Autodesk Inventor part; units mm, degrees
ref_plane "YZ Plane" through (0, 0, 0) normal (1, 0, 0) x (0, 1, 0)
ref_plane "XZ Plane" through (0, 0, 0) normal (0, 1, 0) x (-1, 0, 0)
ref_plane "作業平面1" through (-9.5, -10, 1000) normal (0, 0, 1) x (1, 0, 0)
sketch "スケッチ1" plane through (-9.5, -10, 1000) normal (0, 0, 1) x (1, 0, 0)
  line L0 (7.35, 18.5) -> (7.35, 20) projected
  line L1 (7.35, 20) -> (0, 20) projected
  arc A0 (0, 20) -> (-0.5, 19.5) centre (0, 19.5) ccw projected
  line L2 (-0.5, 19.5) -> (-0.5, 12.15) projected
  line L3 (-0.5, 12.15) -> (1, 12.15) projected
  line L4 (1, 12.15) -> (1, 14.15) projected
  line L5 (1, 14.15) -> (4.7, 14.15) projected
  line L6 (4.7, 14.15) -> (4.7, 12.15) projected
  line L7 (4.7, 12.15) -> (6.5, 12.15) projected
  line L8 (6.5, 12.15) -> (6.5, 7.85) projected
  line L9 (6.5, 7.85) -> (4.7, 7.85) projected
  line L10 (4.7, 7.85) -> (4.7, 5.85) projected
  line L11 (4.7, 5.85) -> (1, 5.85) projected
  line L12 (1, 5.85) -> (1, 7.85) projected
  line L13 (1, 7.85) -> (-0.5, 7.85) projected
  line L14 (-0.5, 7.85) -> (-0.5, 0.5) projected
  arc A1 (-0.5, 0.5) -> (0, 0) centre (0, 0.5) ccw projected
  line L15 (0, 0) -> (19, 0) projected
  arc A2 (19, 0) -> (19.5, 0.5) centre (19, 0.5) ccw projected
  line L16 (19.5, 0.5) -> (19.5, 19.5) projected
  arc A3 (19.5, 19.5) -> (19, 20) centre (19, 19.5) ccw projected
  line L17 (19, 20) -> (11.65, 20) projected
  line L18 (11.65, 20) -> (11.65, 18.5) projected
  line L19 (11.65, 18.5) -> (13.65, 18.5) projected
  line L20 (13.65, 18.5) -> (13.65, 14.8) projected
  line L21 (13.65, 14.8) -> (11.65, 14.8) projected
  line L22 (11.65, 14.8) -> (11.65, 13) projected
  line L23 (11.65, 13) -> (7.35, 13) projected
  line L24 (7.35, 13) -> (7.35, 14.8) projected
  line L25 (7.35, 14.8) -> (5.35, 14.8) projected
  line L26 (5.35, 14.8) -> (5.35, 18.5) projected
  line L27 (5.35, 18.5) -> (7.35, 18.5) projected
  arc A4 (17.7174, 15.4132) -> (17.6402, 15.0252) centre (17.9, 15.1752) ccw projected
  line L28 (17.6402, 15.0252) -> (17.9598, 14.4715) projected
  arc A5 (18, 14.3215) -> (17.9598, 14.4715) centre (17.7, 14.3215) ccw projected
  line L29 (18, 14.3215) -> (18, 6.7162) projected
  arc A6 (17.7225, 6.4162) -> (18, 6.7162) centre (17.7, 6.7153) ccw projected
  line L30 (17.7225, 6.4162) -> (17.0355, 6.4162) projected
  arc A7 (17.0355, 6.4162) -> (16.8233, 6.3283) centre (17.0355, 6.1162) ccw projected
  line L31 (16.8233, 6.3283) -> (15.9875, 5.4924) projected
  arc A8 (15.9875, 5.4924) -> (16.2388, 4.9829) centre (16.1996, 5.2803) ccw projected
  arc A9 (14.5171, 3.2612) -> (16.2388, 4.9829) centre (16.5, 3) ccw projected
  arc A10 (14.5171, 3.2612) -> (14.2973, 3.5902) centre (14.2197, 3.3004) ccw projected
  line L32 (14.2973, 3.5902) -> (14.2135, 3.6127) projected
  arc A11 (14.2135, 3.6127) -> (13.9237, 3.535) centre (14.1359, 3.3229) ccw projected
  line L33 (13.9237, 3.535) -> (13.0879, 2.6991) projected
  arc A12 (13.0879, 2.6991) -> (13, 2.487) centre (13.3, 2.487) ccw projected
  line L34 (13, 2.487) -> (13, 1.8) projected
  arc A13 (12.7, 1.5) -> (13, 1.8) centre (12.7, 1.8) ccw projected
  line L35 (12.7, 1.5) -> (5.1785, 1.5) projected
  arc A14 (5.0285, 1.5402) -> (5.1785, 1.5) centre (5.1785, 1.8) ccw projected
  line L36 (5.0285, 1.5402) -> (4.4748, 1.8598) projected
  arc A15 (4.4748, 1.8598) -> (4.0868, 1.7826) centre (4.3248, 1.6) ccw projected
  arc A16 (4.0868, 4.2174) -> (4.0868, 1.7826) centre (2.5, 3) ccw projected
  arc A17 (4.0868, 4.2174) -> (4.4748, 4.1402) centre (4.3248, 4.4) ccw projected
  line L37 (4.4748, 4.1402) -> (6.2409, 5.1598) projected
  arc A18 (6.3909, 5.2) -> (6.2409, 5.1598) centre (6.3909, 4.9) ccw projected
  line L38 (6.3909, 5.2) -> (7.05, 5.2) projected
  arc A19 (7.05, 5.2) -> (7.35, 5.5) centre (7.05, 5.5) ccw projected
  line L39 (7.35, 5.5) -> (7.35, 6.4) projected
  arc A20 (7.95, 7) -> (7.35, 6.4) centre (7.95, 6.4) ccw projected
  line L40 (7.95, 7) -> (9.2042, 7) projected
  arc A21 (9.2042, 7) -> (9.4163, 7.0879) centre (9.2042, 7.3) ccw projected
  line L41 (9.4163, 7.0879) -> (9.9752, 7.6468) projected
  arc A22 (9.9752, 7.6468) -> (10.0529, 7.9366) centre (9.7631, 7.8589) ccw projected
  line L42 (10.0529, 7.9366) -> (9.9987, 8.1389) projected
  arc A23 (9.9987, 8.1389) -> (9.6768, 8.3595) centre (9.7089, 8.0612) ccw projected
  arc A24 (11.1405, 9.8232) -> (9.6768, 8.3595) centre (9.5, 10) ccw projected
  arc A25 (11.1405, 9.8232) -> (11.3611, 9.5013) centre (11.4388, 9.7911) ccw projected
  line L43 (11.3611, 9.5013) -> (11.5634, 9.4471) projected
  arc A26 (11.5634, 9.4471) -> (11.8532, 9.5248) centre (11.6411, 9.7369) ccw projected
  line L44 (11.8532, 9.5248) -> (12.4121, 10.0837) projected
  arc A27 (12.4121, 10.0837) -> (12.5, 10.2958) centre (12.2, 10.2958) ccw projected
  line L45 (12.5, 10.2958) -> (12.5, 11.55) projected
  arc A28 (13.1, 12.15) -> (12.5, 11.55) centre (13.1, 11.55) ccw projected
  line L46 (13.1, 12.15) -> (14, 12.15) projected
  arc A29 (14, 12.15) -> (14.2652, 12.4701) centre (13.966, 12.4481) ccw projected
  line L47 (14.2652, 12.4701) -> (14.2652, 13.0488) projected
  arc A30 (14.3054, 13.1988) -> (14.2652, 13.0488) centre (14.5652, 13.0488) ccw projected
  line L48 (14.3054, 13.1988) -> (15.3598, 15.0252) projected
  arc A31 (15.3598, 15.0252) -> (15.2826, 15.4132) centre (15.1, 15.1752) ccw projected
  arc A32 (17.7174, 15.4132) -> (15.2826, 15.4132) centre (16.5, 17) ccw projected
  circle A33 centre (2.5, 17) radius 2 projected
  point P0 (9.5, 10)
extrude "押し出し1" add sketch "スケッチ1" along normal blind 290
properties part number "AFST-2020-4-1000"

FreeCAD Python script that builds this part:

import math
import FreeCAD as App
import Part
import Sketcher

V = App.Vector
Q = App.Units.Quantity

doc = App.newDocument("Part")
body = doc.addObject("PartDesign::Body", "Body")

# Sketch on XY plane
sketch1 = body.newObject("Sketcher::SketchObject", "Sketch")
sketch1.AttachmentSupport = (doc.getObject("XY_Plane"), [""])
sketch1.MapMode = "FlatFace"
sketch1.AttachmentOffset = App.Placement(V(0, 0, 1000), App.Rotation())
sketch1.addGeometry([
    Part.LineSegment(V(-4.15, 8.5, 0), V(-2.15, 8.5, 0)),  # 0
    Part.LineSegment(V(-2.15, 8.5, 0), V(-2.15, 10, 0)),  # 1
    Part.LineSegment(V(-2.15, 10, 0), V(-9.5, 10, 0)),  # 2
    Part.ArcOfCircle(Part.Circle(V(-9.5, 9.5, 0), V(0, 0, 1), 0.5), math.radians(90), math.radians(180)),  # 3
    Part.LineSegment(V(-10, 9.5, 0), V(-10, 2.15, 0)),  # 4
    Part.LineSegment(V(-10, 2.15, 0), V(-8.5, 2.15, 0)),  # 5
    Part.LineSegment(V(-8.5, 2.15, 0), V(-8.5, 4.15, 0)),  # 6
    Part.LineSegment(V(-8.5, 4.15, 0), V(-4.8, 4.15, 0)),  # 7
    Part.LineSegment(V(-4.8, 4.15, 0), V(-4.8, 2.15, 0)),  # 8
    Part.LineSegment(V(-4.8, 2.15, 0), V(-3, 2.15, 0)),  # 9
    Part.LineSegment(V(-3, 2.15, 0), V(-3, -2.15, 0)),  # 10
    Part.LineSegment(V(-3, -2.15, 0), V(-4.8, -2.15, 0)),  # 11
    Part.LineSegment(V(-4.8, -2.15, 0), V(-4.8, -4.15, 0)),  # 12
    Part.LineSegment(V(-4.8, -4.15, 0), V(-8.5, -4.15, 0)),  # 13
    Part.LineSegment(V(-8.5, -4.15, 0), V(-8.5, -2.15, 0)),  # 14
    Part.LineSegment(V(-8.5, -2.15, 0), V(-10, -2.15, 0)),  # 15
    Part.LineSegment(V(-10, -2.15, 0), V(-10, -9.5, 0)),  # 16
    Part.ArcOfCircle(Part.Circle(V(-9.5, -9.5, 0), V(0, 0, 1), 0.5), math.radians(180), math.radians(270)),  # 17
    Part.LineSegment(V(-9.5, -10, 0), V(9.5, -10, 0)),  # 18
    Part.ArcOfCircle(Part.Circle(V(9.5, -9.5, 0), V(0, 0, 1), 0.5), math.radians(-90), math.radians(0)),  # 19
    Part.LineSegment(V(10, -9.5, 0), V(10, 9.5, 0)),  # 20
    Part.ArcOfCircle(Part.Circle(V(9.5, 9.5, 0), V(0, 0, 1), 0.5), math.radians(0), math.radians(90)),  # 21
    Part.LineSegment(V(9.5, 10, 0), V(2.15, 10, 0)),  # 22
    Part.LineSegment(V(2.15, 10, 0), V(2.15, 8.5, 0)),  # 23
    Part.LineSegment(V(2.15, 8.5, 0), V(4.15, 8.5, 0)),  # 24
    Part.LineSegment(V(4.15, 8.5, 0), V(4.15, 4.8, 0)),  # 25
    Part.LineSegment(V(4.15, 4.8, 0), V(2.15, 4.8, 0)),  # 26
    Part.LineSegment(V(2.15, 4.8, 0), V(2.15, 3, 0)),  # 27
    Part.LineSegment(V(2.15, 3, 0), V(-2.15, 3, 0)),  # 28
    Part.LineSegment(V(-2.15, 3, 0), V(-2.15, 4.8, 0)),  # 29
    Part.LineSegment(V(-2.15, 4.8, 0), V(-4.15, 4.8, 0)),  # 30
    Part.LineSegment(V(-4.15, 4.8, 0), V(-4.15, 8.5, 0)),  # 31
    Part.ArcOfCircle(Part.Circle(V(7, 7, 0), V(0, 0, 1), 1.999999), math.radians(-52.50442), math.radians(232.50442)),  # 32
    Part.ArcOfCircle(Part.Circle(V(8.4, 5.1752, 0), V(0, 0, 1), 0.299978), math.radians(127.49639), math.radians(210.000728)),  # 33
    Part.LineSegment(V(8.1402, 5.0252, 0), V(8.4598, 4.4715, 0)),  # 34
    Part.ArcOfCircle(Part.Circle(V(8.2, 4.3215, 0), V(0, 0, 1), 0.3), math.radians(0), math.radians(30.000728)),  # 35
    Part.LineSegment(V(8.5, 4.3215, 0), V(8.5, -3.2838, 0)),  # 36
    Part.ArcOfCircle(Part.Circle(V(8.2, -3.2847, 0), V(0, 0, 1), 0.299945), math.radians(-85.697989), math.radians(0.171887)),  # 37
    Part.LineSegment(V(8.2225, -3.5838, 0), V(7.5355, -3.5838, 0)),  # 38
    Part.ArcOfCircle(Part.Circle(V(7.5355, -3.8838, 0), V(0, 0, 1), 0.3), math.radians(90), math.radians(135.013504)),  # 39
    Part.LineSegment(V(7.3233, -3.6717, 0), V(6.4875, -4.5076, 0)),  # 40
    Part.ArcOfCircle(Part.Circle(V(6.6996, -4.7197, 0), V(0, 0, 1), 0.299955), math.radians(135), math.radians(277.508815)),  # 41
    Part.ArcOfCircle(Part.Circle(V(7, -7, 0), V(0, 0, 1), 2.000029), math.radians(172.495846), math.radians(457.504154)),  # 42
    Part.ArcOfCircle(Part.Circle(V(4.7197, -6.6996, 0), V(0, 0, 1), 0.299972), math.radians(-7.508815), math.radians(75.009533)),  # 43
    Part.LineSegment(V(4.7973, -6.4098, 0), V(4.7135, -6.3873, 0)),  # 44
    Part.ArcOfCircle(Part.Circle(V(4.6359, -6.6771, 0), V(0, 0, 1), 0.30001), math.radians(75.009533), math.radians(135.013504)),  # 45
    Part.LineSegment(V(4.4237, -6.465, 0), V(3.5879, -7.3009, 0)),  # 46
    Part.ArcOfCircle(Part.Circle(V(3.8, -7.513, 0), V(0, 0, 1), 0.299955), math.radians(135), math.radians(180)),  # 47
    Part.LineSegment(V(3.5, -7.513, 0), V(3.5, -8.2, 0)),  # 48
    Part.ArcOfCircle(Part.Circle(V(3.2, -8.2, 0), V(0, 0, 1), 0.3), math.radians(-90), math.radians(0)),  # 49
    Part.LineSegment(V(3.2, -8.5, 0), V(-4.3215, -8.5, 0)),  # 50
    Part.ArcOfCircle(Part.Circle(V(-4.3215, -8.2, 0), V(0, 0, 1), 0.299993), math.radians(-120.000728), math.radians(-90)),  # 51
    Part.LineSegment(V(-4.4715, -8.4598, 0), V(-5.0252, -8.1402, 0)),  # 52
    Part.ArcOfCircle(Part.Circle(V(-5.1752, -8.4, 0), V(0, 0, 1), 0.299993), math.radians(59.999272), math.radians(142.50361)),  # 53
    Part.ArcOfCircle(Part.Circle(V(-7, -7, 0), V(0, 0, 1), 1.999999), math.radians(37.49558), math.radians(322.50442)),  # 54
    Part.ArcOfCircle(Part.Circle(V(-5.1752, -5.6, 0), V(0, 0, 1), 0.299978), math.radians(-142.50361), math.radians(-59.999272)),  # 55
    Part.LineSegment(V(-5.0252, -5.8598, 0), V(-3.2591, -4.8402, 0)),  # 56
    Part.ArcOfCircle(Part.Circle(V(-3.1091, -5.1, 0), V(0, 0, 1), 0.3), math.radians(90), math.radians(120.000728)),  # 57
    Part.LineSegment(V(-3.1091, -4.8, 0), V(-2.45, -4.8, 0)),  # 58
    Part.ArcOfCircle(Part.Circle(V(-2.45, -4.5, 0), V(0, 0, 1), 0.3), math.radians(-90), math.radians(0)),  # 59
    Part.LineSegment(V(-2.15, -4.5, 0), V(-2.15, -3.6, 0)),  # 60
    Part.ArcOfCircle(Part.Circle(V(-1.55, -3.6, 0), V(0, 0, 1), 0.6), math.radians(90), math.radians(180)),  # 61
    Part.LineSegment(V(-1.55, -3, 0), V(-0.2958, -3, 0)),  # 62
    Part.ArcOfCircle(Part.Circle(V(-0.2958, -2.7, 0), V(0, 0, 1), 0.3), math.radians(-90), math.radians(-45)),  # 63
    Part.LineSegment(V(-0.0837, -2.9121, 0), V(0.4752, -2.3532, 0)),  # 64
    Part.ArcOfCircle(Part.Circle(V(0.2631, -2.1411, 0), V(0, 0, 1), 0.299955), math.radians(-45), math.radians(15.008914)),  # 65
    Part.LineSegment(V(0.5529, -2.0634, 0), V(0.4987, -1.8611, 0)),  # 66
    Part.ArcOfCircle(Part.Circle(V(0.2089, -1.9388, 0), V(0, 0, 1), 0.300036), math.radians(15.008914), math.radians(96.141952)),  # 67
    Part.ArcOfCircle(Part.Circle(V(0, 0, 0), V(0, 0, 1), 1.65), math.radians(-6.15114), math.radians(276.15114)),  # 68
    Part.ArcOfCircle(Part.Circle(V(1.9388, -0.2089, 0), V(0, 0, 1), 0.300022), math.radians(173.858048), math.radians(254.991086)),  # 69
    Part.LineSegment(V(1.8611, -0.4987, 0), V(2.0634, -0.5529, 0)),  # 70
    Part.ArcOfCircle(Part.Circle(V(2.1411, -0.2631, 0), V(0, 0, 1), 0.300036), math.radians(-105.008914), math.radians(-45)),  # 71
    Part.LineSegment(V(2.3532, -0.4752, 0), V(2.9121, 0.0837, 0)),  # 72
    Part.ArcOfCircle(Part.Circle(V(2.7, 0.2958, 0), V(0, 0, 1), 0.299955), math.radians(-45), math.radians(0)),  # 73
    Part.LineSegment(V(3, 0.2958, 0), V(3, 1.55, 0)),  # 74
    Part.ArcOfCircle(Part.Circle(V(3.6, 1.55, 0), V(0, 0, 1), 0.6), math.radians(90), math.radians(180)),  # 75
    Part.LineSegment(V(3.6, 2.15, 0), V(4.5, 2.15, 0)),  # 76
    Part.ArcOfCircle(Part.Circle(V(4.466, 2.4481, 0), V(0, 0, 1), 0.300033), math.radians(-83.493208), math.radians(4.205357)),  # 77
    Part.LineSegment(V(4.7652, 2.4701, 0), V(4.7652, 3.0488, 0)),  # 78
    Part.ArcOfCircle(Part.Circle(V(5.0652, 3.0488, 0), V(0, 0, 1), 0.299993), math.radians(149.999272), math.radians(180)),  # 79
    Part.LineSegment(V(4.8054, 3.1988, 0), V(5.8598, 5.0252, 0)),  # 80
    Part.ArcOfCircle(Part.Circle(V(5.6, 5.1752, 0), V(0, 0, 1), 0.299993), math.radians(-30.000728), math.radians(52.50361)),  # 81
    Part.Circle(V(-7, 7, 0), V(0, 0, 1), 2),  # 82
], False)
sketch1.addConstraint([
    Sketcher.Constraint("Coincident", 0, 2, 1, 1),
    Sketcher.Constraint("Coincident", 1, 2, 2, 1),
    Sketcher.Constraint("Tangent", 2, 2, 3, 1),
    Sketcher.Constraint("Tangent", 3, 2, 4, 1),
    Sketcher.Constraint("Coincident", 4, 2, 5, 1),
    Sketcher.Constraint("Coincident", 5, 2, 6, 1),
    Sketcher.Constraint("Coincident", 6, 2, 7, 1),
    Sketcher.Constraint("Coincident", 7, 2, 8, 1),
    Sketcher.Constraint("Coincident", 8, 2, 9, 1),
    Sketcher.Constraint("Coincident", 9, 2, 10, 1),
    Sketcher.Constraint("Coincident", 10, 2, 11, 1),
    Sketcher.Constraint("Coincident", 11, 2, 12, 1),
    Sketcher.Constraint("Coincident", 12, 2, 13, 1),
    Sketcher.Constraint("Coincident", 13, 2, 14, 1),
    Sketcher.Constraint("Coincident", 14, 2, 15, 1),
    Sketcher.Constraint("Coincident", 15, 2, 16, 1),
    Sketcher.Constraint("Tangent", 16, 2, 17, 1),
    Sketcher.Constraint("Tangent", 17, 2, 18, 1),
    Sketcher.Constraint("Tangent", 18, 2, 19, 1),
    Sketcher.Constraint("Tangent", 19, 2, 20, 1),
    Sketcher.Constraint("Tangent", 20, 2, 21, 1),
    Sketcher.Constraint("Tangent", 21, 2, 22, 1),
    Sketcher.Constraint("Coincident", 22, 2, 23, 1),
    Sketcher.Constraint("Coincident", 23, 2, 24, 1),
    Sketcher.Constraint("Coincident", 24, 2, 25, 1),
    Sketcher.Constraint("Coincident", 25, 2, 26, 1),
    Sketcher.Constraint("Coincident", 26, 2, 27, 1),
    Sketcher.Constraint("Coincident", 27, 2, 28, 1),
    Sketcher.Constraint("Coincident", 28, 2, 29, 1),
    Sketcher.Constraint("Coincident", 29, 2, 30, 1),
    Sketcher.Constraint("Coincident", 30, 2, 31, 1),
    Sketcher.Constraint("Coincident", 31, 2, 0, 1),
    Sketcher.Constraint("Tangent", 32, 1, 33, 1),
    Sketcher.Constraint("Tangent", 33, 2, 34, 1),
    Sketcher.Constraint("Tangent", 34, 2, 35, 2),
    Sketcher.Constraint("Tangent", 35, 1, 36, 1),
    Sketcher.Constraint("Coincident", 36, 2, 37, 2),
    Sketcher.Constraint("Coincident", 37, 1, 38, 1),
    Sketcher.Constraint("Tangent", 38, 2, 39, 1),
    Sketcher.Constraint("Tangent", 39, 2, 40, 1),
    Sketcher.Constraint("Tangent", 40, 2, 41, 1),
    Sketcher.Constraint("Tangent", 41, 2, 42, 2),
    Sketcher.Constraint("Tangent", 42, 1, 43, 1),
    Sketcher.Constraint("Coincident", 43, 2, 44, 1),
    Sketcher.Constraint("Coincident", 44, 2, 45, 1),
    Sketcher.Constraint("Tangent", 45, 2, 46, 1),
    Sketcher.Constraint("Tangent", 46, 2, 47, 1),
    Sketcher.Constraint("Tangent", 47, 2, 48, 1),
    Sketcher.Constraint("Tangent", 48, 2, 49, 2),
    Sketcher.Constraint("Tangent", 49, 1, 50, 1),
    Sketcher.Constraint("Tangent", 50, 2, 51, 2),
    Sketcher.Constraint("Tangent", 51, 1, 52, 1),
    Sketcher.Constraint("Tangent", 52, 2, 53, 1),
    Sketcher.Constraint("Tangent", 53, 2, 54, 2),
    Sketcher.Constraint("Tangent", 54, 1, 55, 1),
    Sketcher.Constraint("Tangent", 55, 2, 56, 1),
    Sketcher.Constraint("Tangent", 56, 2, 57, 2),
    Sketcher.Constraint("Tangent", 57, 1, 58, 1),
    Sketcher.Constraint("Tangent", 58, 2, 59, 1),
    Sketcher.Constraint("Tangent", 59, 2, 60, 1),
    Sketcher.Constraint("Tangent", 60, 2, 61, 2),
    Sketcher.Constraint("Tangent", 61, 1, 62, 1),
    Sketcher.Constraint("Tangent", 62, 2, 63, 1),
    Sketcher.Constraint("Tangent", 63, 2, 64, 1),
    Sketcher.Constraint("Tangent", 64, 2, 65, 1),
    Sketcher.Constraint("Tangent", 65, 2, 66, 1),
    Sketcher.Constraint("Tangent", 66, 2, 67, 1),
    Sketcher.Constraint("Tangent", 67, 2, 68, 2),
    Sketcher.Constraint("Tangent", 68, 1, 69, 1),
    Sketcher.Constraint("Tangent", 69, 2, 70, 1),
    Sketcher.Constraint("Tangent", 70, 2, 71, 1),
    Sketcher.Constraint("Tangent", 71, 2, 72, 1),
    Sketcher.Constraint("Tangent", 72, 2, 73, 1),
    Sketcher.Constraint("Tangent", 73, 2, 74, 1),
    Sketcher.Constraint("Tangent", 74, 2, 75, 2),
    Sketcher.Constraint("Tangent", 75, 1, 76, 1),
    Sketcher.Constraint("Coincident", 76, 2, 77, 1),
    Sketcher.Constraint("Coincident", 77, 2, 78, 1),
    Sketcher.Constraint("Tangent", 78, 2, 79, 2),
    Sketcher.Constraint("Tangent", 79, 1, 80, 1),
    Sketcher.Constraint("Tangent", 80, 2, 81, 1),
    Sketcher.Constraint("Tangent", 81, 2, 32, 2),
    Sketcher.Constraint("Horizontal", 0),
    Sketcher.Constraint("Vertical", 1),
    Sketcher.Constraint("Horizontal", 2),
    Sketcher.Constraint("Vertical", 4),
    Sketcher.Constraint("Horizontal", 5),
    Sketcher.Constraint("Vertical", 6),
    Sketcher.Constraint("Horizontal", 7),
    Sketcher.Constraint("Vertical", 8),
    Sketcher.Constraint("Horizontal", 9),
    Sketcher.Constraint("Vertical", 10),
    Sketcher.Constraint("Horizontal", 11),
    Sketcher.Constraint("Vertical", 12),
    Sketcher.Constraint("Horizontal", 13),
    Sketcher.Constraint("Vertical", 14),
    Sketcher.Constraint("Horizontal", 15),
    Sketcher.Constraint("Vertical", 16),
    Sketcher.Constraint("Horizontal", 18),
    Sketcher.Constraint("Vertical", 20),
    Sketcher.Constraint("Horizontal", 22),
    Sketcher.Constraint("Vertical", 23),
    Sketcher.Constraint("Horizontal", 24),
    Sketcher.Constraint("Vertical", 25),
    Sketcher.Constraint("Horizontal", 26),
    Sketcher.Constraint("Vertical", 27),
    Sketcher.Constraint("Horizontal", 28),
    Sketcher.Constraint("Vertical", 29),
    Sketcher.Constraint("Horizontal", 30),
    Sketcher.Constraint("Vertical", 31),
    Sketcher.Constraint("Vertical", 36),
    Sketcher.Constraint("Horizontal", 38),
    Sketcher.Constraint("Vertical", 48),
    Sketcher.Constraint("Horizontal", 50),
    Sketcher.Constraint("Horizontal", 58),
    Sketcher.Constraint("Vertical", 60),
    Sketcher.Constraint("Horizontal", 62),
    Sketcher.Constraint("Vertical", 74),
    Sketcher.Constraint("Horizontal", 76),
    Sketcher.Constraint("Vertical", 78),
    Sketcher.Constraint("Coincident", 68, 3, -1, 1),
    Sketcher.Constraint("Equal", 3, 17),
    Sketcher.Constraint("Equal", 17, 19),
    Sketcher.Constraint("Equal", 19, 21),
    Sketcher.Constraint("Equal", 33, 35),
    Sketcher.Constraint("Equal", 35, 37),
    Sketcher.Constraint("Equal", 37, 39),
    Sketcher.Constraint("Equal", 39, 41),
    Sketcher.Constraint("Equal", 32, 42),
    Sketcher.Constraint("Equal", 41, 43),
    Sketcher.Constraint("Equal", 43, 45),
    Sketcher.Constraint("Equal", 45, 47),
    Sketcher.Constraint("Equal", 47, 49),
    Sketcher.Constraint("Equal", 49, 51),
    Sketcher.Constraint("Equal", 51, 53),
    Sketcher.Constraint("Equal", 42, 54),
    Sketcher.Constraint("Equal", 53, 55),
    Sketcher.Constraint("Equal", 55, 57),
    Sketcher.Constraint("Equal", 57, 59),
    Sketcher.Constraint("Equal", 59, 63),
    Sketcher.Constraint("Equal", 63, 65),
    Sketcher.Constraint("Equal", 65, 67),
    Sketcher.Constraint("Equal", 67, 69),
    Sketcher.Constraint("Equal", 69, 71),
    Sketcher.Constraint("Equal", 71, 73),
    Sketcher.Constraint("Equal", 61, 75),
    Sketcher.Constraint("Equal", 73, 77),
    Sketcher.Constraint("Equal", 77, 79),
    Sketcher.Constraint("Equal", 79, 81),
    Sketcher.Constraint("Equal", 54, 82),
    Sketcher.Constraint("Symmetric", 3, 3, 19, 3, -1, 1),
    Sketcher.Constraint("Symmetric", 17, 3, 21, 3, -1, 1),
    Sketcher.Constraint("Symmetric", 32, 3, 54, 3, -1, 1),
    Sketcher.Constraint("Symmetric", 42, 3, 82, 3, -1, 1),
    Sketcher.Constraint("Symmetric", 42, 3, 54, 3, -2),
    Sketcher.Constraint("Symmetric", 0, 2, 23, 2, -2),
    Sketcher.Constraint("Symmetric", 26, 2, 29, 2, -2),
    Sketcher.Constraint("Symmetric", 8, 2, 11, 2, -1),
    Sketcher.Constraint("Symmetric", 6, 2, 13, 2, -1),
    Sketcher.Constraint("Parallel", 40, 46),
    Sketcher.Constraint("Perpendicular", 34, 56),
    Sketcher.Constraint("Parallel", 46, 64),
    Sketcher.Constraint("Parallel", 64, 72),
    Sketcher.Constraint("Perpendicular", 52, 80),
    Sketcher.Constraint("Horizontal", 33, 3, 81, 3),
    Sketcher.Constraint("Horizontal", 5, 2, 8, 2),
    Sketcher.Constraint("Horizontal", 11, 2, 14, 2),
    Sketcher.Constraint("Horizontal", 9, 2, 75, 1),
    Sketcher.Constraint("Horizontal", 33, 2, 80, 2),
    Sketcher.Constraint("Vertical", 53, 3, 55, 3),
    Sketcher.Constraint("Vertical", 23, 2, 26, 2),
    Sketcher.Constraint("Vertical", 29, 2, 59, 2),
    Sketcher.Constraint("Equal", 0, 24),
    Sketcher.Constraint("Equal", 15, 1),
    Sketcher.Constraint("Equal", 22, 4),
    Sketcher.Constraint("Equal", 30, 6),
    Sketcher.Constraint("Equal", 28, 10),
    Sketcher.Constraint("Equal", 13, 25),
    Sketcher.Constraint("Equal", 11, 27),
    Sketcher.Constraint("Equal", 38, 48),
    Sketcher.Constraint("Equal", 76, 60),
    Sketcher.Constraint("Equal", 62, 74),
    Sketcher.Constraint("Equal", 40, 46),
    Sketcher.Constraint("Equal", 34, 52),
    Sketcher.Constraint("Equal", 66, 70),
    Sketcher.Constraint("Equal", 64, 72),
    Sketcher.Constraint("Diameter", 82, Q("4 mm")),
    Sketcher.Constraint("Radius", 3, Q("0.5 mm")),
    Sketcher.Constraint("Radius", 33, Q("0.3 mm")),
    Sketcher.Constraint("Radius", 61, Q("0.6 mm")),
    Sketcher.Constraint("DistanceX", 0, 1, 0, 2, Q("2 mm")),
    Sketcher.Constraint("DistanceX", 18, 1, 18, 2, Q("19 mm")),
    Sketcher.Constraint("Angle", 64, Q("45 deg")),
    Sketcher.Constraint("Radius", 68, Q("1.65 mm")),
    Sketcher.Constraint("DistanceX", 5, 1, 5, 2, Q("1.5 mm")),
    Sketcher.Constraint("DistanceX", 7, 1, 7, 2, Q("3.7 mm")),
    Sketcher.Constraint("DistanceX", 9, 1, 9, 2, Q("1.8 mm")),
    Sketcher.Constraint("DistanceX", 28, 2, 28, 1, Q("4.3 mm")),
    Sketcher.Constraint("DistanceX", 76, 1, 76, 2, Q("0.9 mm")),
    Sketcher.Constraint("DistanceX", -1, 1, 32, 3, Q("7 mm")),
    Sketcher.Constraint("DistanceY", -1, 1, 32, 3, Q("7 mm")),
    Sketcher.Constraint("DistanceY", 61, 1, -1, 1, Q("3 mm")),
    Sketcher.Constraint("DistanceX", -1, 1, 73, 2, Q("3 mm")),
    Sketcher.Constraint("DistanceX", -1, 1, 33, 3, Q("8.4 mm")),
    Sketcher.Constraint("DistanceX", -1, 1, 35, 3, Q("8.2 mm")),
    Sketcher.Constraint("DistanceX", -1, 1, 47, 3, Q("3.8 mm")),
    Sketcher.Constraint("DistanceY", 49, 3, -1, 1, Q("8.2 mm")),
    Sketcher.Constraint("Angle", 44, Q("164.9708 deg")),
    Sketcher.Constraint("DistanceX", 38, 2, 38, 1, Q("0.687 mm")),
    Sketcher.Constraint("DistanceX", 58, 1, 58, 2, Q("0.659 mm")),
    Sketcher.Constraint("DistanceY", -1, 1, 77, 2, Q("2.47 mm")),
    Sketcher.Constraint("Distance", 40, Q("1.182 mm")),
    Sketcher.Constraint("Distance", 80, Q("2.109 mm")),
    Sketcher.Constraint("DistanceX", 62, 1, 62, 2, Q("1.2542 mm")),
    Sketcher.Constraint("DistanceY", 36, 2, 36, 1, Q("7.6053 mm")),
    Sketcher.Constraint("DistanceX", -1, 1, 65, 3, Q("0.263 mm")),
    Sketcher.Constraint("DistanceX", -1, 1, 67, 3, Q("0.209 mm")),
    Sketcher.Constraint("DistanceY", 41, 2, -1, 1, Q("5.017 mm")),
    Sketcher.Constraint("Distance", 44, Q("0.0868 mm")),
    Sketcher.Constraint("DistanceX", -1, 1, 43, 2, Q("4.7973 mm")),
])
pad1 = body.newObject("PartDesign::Pad", "Pad")
pad1.Profile = sketch1
pad1.Length = 290

doc.recompute()
